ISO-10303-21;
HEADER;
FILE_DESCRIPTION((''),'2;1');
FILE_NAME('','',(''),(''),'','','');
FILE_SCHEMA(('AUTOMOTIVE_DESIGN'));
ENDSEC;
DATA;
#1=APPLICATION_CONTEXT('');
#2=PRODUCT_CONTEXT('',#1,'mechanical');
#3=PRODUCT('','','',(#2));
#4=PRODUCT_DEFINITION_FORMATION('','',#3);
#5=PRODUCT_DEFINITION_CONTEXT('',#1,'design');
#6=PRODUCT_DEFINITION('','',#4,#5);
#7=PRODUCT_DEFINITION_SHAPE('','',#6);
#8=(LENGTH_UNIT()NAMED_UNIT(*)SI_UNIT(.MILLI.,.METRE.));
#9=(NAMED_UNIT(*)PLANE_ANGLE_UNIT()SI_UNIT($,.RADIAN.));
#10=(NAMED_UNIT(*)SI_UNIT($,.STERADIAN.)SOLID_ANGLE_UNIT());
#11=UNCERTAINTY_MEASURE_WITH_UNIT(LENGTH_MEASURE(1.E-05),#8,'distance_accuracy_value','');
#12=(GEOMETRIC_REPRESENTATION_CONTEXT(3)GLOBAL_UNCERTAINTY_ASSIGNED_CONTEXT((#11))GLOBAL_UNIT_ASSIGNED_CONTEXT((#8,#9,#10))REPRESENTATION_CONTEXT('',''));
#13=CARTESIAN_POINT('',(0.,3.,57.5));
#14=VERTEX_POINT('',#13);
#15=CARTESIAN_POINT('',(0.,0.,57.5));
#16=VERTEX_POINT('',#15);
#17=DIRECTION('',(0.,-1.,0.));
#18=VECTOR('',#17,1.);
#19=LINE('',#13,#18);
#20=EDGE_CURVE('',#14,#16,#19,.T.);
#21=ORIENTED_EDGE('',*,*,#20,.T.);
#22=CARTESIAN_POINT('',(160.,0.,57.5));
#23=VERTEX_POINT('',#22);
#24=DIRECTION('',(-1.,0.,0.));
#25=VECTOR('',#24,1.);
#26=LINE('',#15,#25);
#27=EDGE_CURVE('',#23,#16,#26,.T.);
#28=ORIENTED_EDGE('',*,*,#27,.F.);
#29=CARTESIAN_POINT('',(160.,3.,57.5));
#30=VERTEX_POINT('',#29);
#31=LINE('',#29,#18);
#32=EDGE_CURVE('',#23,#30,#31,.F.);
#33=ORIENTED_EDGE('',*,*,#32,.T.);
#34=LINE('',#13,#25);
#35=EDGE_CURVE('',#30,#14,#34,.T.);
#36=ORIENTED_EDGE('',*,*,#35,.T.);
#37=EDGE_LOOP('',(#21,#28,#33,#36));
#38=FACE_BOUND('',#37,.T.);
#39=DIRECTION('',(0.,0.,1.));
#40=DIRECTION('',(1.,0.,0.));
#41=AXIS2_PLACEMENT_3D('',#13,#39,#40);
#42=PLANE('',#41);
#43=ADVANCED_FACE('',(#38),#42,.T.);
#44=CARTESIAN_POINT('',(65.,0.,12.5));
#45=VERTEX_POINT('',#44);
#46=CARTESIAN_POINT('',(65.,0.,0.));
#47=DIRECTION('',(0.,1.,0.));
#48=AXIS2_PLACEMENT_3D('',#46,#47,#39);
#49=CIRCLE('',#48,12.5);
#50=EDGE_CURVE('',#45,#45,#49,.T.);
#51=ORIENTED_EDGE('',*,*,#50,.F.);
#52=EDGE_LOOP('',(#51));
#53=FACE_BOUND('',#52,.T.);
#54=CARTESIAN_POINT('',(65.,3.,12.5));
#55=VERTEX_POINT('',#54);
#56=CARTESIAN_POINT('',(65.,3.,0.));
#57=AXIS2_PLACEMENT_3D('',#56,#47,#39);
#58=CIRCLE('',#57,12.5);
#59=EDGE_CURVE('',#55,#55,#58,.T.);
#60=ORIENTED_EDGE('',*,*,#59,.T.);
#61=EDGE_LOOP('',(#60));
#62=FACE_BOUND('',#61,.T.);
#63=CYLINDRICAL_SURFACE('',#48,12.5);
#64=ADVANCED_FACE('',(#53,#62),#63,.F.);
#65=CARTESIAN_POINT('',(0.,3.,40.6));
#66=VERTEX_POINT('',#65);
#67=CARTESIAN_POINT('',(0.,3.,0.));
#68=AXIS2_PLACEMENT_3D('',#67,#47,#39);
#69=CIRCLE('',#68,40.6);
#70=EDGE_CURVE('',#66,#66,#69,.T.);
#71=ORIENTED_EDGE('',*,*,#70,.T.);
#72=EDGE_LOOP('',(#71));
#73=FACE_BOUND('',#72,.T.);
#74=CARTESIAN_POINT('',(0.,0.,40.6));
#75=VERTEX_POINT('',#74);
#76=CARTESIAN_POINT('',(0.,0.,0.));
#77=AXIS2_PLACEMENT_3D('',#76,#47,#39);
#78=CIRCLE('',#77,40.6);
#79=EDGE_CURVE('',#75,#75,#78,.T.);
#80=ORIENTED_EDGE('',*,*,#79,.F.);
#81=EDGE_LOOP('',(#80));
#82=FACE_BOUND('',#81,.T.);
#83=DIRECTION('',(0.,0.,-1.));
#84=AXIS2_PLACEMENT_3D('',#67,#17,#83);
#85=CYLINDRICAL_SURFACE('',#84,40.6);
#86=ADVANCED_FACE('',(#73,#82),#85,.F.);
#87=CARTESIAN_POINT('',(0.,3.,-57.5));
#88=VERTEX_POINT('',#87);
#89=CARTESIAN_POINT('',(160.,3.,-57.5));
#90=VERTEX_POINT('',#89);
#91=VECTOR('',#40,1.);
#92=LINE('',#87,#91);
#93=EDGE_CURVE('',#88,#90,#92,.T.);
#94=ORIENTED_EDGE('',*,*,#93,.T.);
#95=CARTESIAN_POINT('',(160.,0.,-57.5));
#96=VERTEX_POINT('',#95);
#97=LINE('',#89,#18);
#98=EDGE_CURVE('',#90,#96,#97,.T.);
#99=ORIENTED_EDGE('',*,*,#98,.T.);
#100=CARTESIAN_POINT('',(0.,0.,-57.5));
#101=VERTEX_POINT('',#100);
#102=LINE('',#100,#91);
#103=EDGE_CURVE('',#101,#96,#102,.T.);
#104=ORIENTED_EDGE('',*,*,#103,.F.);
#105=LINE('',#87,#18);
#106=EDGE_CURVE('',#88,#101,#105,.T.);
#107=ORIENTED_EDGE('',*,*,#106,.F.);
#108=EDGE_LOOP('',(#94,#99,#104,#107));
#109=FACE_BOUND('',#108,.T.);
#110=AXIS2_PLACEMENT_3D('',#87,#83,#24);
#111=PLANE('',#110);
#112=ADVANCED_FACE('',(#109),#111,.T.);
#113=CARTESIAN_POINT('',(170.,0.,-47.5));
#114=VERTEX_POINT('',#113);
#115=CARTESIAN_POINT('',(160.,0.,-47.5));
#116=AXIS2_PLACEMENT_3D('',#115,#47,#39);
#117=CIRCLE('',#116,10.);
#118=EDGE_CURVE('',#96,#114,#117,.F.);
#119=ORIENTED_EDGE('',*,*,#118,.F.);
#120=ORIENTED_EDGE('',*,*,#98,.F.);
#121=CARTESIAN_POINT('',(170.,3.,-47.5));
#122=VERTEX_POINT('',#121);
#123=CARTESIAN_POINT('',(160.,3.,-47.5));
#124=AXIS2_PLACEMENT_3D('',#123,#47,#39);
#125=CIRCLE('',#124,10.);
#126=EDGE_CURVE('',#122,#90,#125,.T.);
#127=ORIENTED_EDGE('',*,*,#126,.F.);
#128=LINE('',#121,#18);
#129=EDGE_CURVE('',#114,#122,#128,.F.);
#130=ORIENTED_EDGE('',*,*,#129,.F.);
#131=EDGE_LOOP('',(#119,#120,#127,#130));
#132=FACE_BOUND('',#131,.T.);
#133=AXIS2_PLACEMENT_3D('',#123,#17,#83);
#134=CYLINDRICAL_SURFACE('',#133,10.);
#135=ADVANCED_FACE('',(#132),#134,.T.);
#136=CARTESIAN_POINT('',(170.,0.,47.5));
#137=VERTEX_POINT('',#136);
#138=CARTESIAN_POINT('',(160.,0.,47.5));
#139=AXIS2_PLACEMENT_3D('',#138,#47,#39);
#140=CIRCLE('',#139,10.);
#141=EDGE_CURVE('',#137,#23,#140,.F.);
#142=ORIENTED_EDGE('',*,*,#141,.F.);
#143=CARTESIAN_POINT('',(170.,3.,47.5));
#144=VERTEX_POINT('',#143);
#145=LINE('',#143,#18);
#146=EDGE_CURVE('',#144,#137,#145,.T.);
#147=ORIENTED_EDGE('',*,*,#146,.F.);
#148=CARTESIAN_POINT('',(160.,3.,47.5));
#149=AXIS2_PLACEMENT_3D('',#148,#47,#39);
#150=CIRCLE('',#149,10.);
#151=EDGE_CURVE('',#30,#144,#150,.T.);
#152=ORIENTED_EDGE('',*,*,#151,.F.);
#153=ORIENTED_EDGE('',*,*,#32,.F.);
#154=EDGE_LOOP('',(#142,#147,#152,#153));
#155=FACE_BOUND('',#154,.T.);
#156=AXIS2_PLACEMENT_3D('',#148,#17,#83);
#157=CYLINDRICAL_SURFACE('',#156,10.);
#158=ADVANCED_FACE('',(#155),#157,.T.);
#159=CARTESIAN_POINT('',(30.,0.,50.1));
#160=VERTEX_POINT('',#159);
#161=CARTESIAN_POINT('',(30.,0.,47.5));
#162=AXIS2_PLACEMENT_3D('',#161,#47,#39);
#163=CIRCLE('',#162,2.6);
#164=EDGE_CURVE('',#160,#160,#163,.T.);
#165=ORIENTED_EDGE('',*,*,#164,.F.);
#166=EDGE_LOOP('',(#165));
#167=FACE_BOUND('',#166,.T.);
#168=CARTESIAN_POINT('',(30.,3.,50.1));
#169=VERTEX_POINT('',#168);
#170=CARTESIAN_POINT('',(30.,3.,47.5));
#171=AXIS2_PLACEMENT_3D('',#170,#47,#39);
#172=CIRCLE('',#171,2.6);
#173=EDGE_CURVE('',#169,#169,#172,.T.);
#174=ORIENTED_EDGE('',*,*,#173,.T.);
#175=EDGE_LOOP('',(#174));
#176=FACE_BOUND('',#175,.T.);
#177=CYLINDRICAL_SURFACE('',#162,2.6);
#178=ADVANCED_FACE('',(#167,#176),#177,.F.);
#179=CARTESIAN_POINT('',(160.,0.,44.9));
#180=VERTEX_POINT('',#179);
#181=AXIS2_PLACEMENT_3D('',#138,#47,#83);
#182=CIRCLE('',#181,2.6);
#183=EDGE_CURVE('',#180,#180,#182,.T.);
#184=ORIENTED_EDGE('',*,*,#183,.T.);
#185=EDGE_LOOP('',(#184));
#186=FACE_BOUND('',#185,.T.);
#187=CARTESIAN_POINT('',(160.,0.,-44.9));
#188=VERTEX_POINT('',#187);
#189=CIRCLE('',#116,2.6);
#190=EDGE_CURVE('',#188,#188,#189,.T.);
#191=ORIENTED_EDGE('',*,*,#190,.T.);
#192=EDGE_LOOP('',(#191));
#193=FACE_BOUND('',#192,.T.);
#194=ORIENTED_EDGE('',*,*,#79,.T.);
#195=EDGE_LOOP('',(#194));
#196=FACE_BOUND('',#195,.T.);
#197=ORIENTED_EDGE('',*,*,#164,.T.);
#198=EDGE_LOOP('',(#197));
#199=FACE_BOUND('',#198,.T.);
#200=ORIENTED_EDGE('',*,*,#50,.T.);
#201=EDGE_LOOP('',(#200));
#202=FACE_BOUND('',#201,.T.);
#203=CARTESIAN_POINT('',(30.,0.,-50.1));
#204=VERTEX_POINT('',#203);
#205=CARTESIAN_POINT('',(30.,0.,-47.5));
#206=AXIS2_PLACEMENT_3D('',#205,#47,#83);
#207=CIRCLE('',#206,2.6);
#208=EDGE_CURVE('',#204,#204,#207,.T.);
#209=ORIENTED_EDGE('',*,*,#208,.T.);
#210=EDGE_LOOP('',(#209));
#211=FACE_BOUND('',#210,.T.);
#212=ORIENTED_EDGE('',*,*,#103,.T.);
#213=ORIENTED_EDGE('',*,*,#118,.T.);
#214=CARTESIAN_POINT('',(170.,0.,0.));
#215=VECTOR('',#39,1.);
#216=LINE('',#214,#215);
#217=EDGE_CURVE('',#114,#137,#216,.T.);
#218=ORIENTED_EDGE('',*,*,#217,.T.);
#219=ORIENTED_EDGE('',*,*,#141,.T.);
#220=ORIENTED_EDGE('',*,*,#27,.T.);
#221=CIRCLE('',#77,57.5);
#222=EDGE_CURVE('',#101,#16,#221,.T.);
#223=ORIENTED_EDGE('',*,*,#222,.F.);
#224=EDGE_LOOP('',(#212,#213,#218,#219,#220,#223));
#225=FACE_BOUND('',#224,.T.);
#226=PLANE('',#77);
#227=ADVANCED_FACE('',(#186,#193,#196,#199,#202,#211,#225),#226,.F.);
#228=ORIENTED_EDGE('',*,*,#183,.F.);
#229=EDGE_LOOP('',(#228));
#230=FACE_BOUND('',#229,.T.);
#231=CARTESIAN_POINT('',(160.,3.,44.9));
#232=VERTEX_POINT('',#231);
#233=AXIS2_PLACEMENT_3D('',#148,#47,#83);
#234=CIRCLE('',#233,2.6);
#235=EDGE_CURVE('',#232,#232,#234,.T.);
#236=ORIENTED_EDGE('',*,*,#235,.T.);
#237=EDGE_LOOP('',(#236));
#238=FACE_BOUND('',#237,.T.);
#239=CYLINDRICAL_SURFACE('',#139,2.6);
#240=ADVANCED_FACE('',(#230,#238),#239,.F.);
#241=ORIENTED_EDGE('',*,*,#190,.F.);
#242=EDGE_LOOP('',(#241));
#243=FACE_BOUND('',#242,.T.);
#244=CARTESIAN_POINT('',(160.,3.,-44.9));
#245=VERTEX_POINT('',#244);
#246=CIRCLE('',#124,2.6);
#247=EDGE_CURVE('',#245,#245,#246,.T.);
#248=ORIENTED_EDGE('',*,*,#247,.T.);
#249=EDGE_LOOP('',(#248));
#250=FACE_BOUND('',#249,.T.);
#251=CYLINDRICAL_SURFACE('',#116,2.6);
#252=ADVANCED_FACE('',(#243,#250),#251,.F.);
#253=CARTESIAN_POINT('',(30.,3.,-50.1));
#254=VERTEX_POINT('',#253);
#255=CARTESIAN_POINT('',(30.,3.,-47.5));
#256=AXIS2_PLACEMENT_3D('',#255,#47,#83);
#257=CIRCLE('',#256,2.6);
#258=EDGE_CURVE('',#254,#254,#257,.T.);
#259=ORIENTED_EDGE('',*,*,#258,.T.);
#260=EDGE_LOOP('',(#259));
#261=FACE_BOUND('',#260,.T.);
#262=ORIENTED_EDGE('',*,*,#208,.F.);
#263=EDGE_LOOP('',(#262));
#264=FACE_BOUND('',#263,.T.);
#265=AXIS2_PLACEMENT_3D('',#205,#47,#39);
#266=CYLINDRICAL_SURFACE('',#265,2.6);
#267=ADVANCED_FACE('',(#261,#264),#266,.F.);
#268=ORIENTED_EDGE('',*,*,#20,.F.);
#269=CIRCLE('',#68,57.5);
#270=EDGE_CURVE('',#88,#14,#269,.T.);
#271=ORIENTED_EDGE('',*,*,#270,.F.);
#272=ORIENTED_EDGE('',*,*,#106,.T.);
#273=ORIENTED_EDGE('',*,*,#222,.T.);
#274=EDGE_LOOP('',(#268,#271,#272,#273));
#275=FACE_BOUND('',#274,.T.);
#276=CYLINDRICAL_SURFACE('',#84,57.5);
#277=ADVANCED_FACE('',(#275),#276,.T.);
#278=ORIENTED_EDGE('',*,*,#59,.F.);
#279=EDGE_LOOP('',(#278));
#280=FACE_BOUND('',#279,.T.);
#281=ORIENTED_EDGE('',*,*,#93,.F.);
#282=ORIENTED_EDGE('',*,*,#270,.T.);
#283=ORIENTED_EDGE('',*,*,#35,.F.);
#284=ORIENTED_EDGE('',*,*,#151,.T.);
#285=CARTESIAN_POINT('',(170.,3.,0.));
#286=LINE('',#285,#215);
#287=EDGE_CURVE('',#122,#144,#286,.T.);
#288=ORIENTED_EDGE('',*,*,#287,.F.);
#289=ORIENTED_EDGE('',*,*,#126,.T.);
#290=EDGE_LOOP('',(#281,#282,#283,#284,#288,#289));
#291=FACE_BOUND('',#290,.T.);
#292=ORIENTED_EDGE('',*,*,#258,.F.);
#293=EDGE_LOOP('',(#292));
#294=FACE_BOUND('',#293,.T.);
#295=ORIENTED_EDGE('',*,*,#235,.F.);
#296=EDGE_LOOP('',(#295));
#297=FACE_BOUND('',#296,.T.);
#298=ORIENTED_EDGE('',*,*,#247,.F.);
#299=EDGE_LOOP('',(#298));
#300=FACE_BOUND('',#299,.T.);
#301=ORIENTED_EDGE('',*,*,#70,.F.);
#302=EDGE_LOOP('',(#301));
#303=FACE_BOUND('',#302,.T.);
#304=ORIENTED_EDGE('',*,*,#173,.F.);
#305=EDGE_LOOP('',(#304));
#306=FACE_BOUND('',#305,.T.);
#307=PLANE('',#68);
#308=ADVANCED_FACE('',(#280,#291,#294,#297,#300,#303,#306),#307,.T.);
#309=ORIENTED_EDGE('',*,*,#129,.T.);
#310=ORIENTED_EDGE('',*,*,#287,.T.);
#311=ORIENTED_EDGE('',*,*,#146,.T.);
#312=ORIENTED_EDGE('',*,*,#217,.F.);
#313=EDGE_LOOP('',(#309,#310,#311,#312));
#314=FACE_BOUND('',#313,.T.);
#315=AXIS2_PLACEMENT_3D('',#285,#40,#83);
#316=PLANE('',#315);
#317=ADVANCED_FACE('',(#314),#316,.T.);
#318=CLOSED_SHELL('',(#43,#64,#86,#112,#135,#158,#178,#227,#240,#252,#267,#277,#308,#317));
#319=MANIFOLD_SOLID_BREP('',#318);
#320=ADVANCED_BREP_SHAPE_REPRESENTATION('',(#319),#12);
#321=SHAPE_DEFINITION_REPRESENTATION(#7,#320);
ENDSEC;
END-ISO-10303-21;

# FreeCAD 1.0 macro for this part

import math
import FreeCAD as App
import Part
import Sketcher
Q = App.Units.Quantity


def edges_at(feature, points):
    """Names of the edges that pass closest to the given points."""
    edges = feature.Shape.Edges
    near = lambda p: min(range(len(edges)), key=lambda i: edges[i].distToShape(Part.Vertex(*p))[0])
    return sorted({f"Edge{near(p) + 1}" for p in points})

doc = App.newDocument("Part")
body = doc.addObject("PartDesign::Body", "Body")

# Sketch on XZ plane
sketch1 = body.newObject("Sketcher::SketchObject", "Sketch")
sketch1.AttachmentSupport = (doc.getObject("XZ_Plane"), [""])
sketch1.MapMode = "FlatFace"
sketch1.addGeometry([
    Part.LineSegment(App.Vector(170, -58, 0), App.Vector(0, -58, 0)),  # 0
    Part.ArcOfCircle(Part.Circle(App.Vector(0, 0, 0), App.Vector(0, 0, 1), 58), math.radians(90), math.radians(270)),  # 1
    Part.LineSegment(App.Vector(0, 58, 0), App.Vector(170, 58, 0)),  # 2
    Part.LineSegment(App.Vector(170, 58, 0), App.Vector(170, -58, 0)),  # 3
    Part.Circle(App.Vector(0, 0, 0), App.Vector(0, 0, 1), 41),  # 4
], False)
sketch1.addConstraint([
    Sketcher.Constraint("Tangent", 0, 2, 1, 2),
    Sketcher.Constraint("Tangent", 1, 1, 2, 1),
    Sketcher.Constraint("Coincident", 2, 2, 3, 1),
    Sketcher.Constraint("Coincident", 3, 2, 0, 1),
    Sketcher.Constraint("Horizontal", 0),
    Sketcher.Constraint("Horizontal", 2),
    Sketcher.Constraint("Vertical", 3),
    Sketcher.Constraint("Coincident", 1, 3, -1, 1),
    Sketcher.Constraint("Coincident", 4, 3, -1, 1),
    Sketcher.Constraint("Diameter", 4, Q("81.2 mm")),
    Sketcher.Constraint("Radius", 1, Q("57.5 mm")),
    Sketcher.Constraint("DistanceX", 0, 2, 0, 1, Q("170 mm")),
])
pad1 = body.newObject("PartDesign::Pad", "Pad")
pad1.Profile = sketch1
pad1.Length = 3
pad1.Reversed = True
doc.recompute()

fillet = body.newObject("PartDesign::Fillet", "Fillet")
fillet.Base = (pad1, edges_at(pad1, [(170, 1.5, -57.5), (170, 1.5, 57.5)]))
fillet.Radius = 10

# Sketch on XZ plane
sketch2 = body.newObject("Sketcher::SketchObject", "Sketch001")
sketch2.AttachmentSupport = (doc.getObject("XZ_Plane"), [""])
sketch2.MapMode = "FlatFace"
sketch2.AttachmentOffset = App.Placement(App.Vector(0, 0, -3), App.Rotation())
sketch2.addGeometry([
    Part.Circle(App.Vector(160, -47.5, 0), App.Vector(0, 0, 1), 2.6),  # 0
    Part.Circle(App.Vector(160, 47.5, 0), App.Vector(0, 0, 1), 2.6),  # 1
    Part.Circle(App.Vector(30, 47.5, 0), App.Vector(0, 0, 1), 2.6),  # 2
    Part.Circle(App.Vector(30, -47.5, 0), App.Vector(0, 0, 1), 2.6),  # 3
    Part.Circle(App.Vector(65, 0, 0), App.Vector(0, 0, 1), 12.5),  # 4
], False)
sketch2.addConstraint([
    Sketcher.Constraint("Equal", 0, 1),
    Sketcher.Constraint("Equal", 1, 2),
    Sketcher.Constraint("Equal", 2, 3),
    Sketcher.Constraint("Symmetric", 0, 3, 1, 3, -1),
    Sketcher.Constraint("Symmetric", 2, 3, 3, 3, -1),
    Sketcher.Constraint("PointOnObject", 4, 3, -1),
    Sketcher.Constraint("Horizontal", 1, 3, 2, 3),
    Sketcher.Constraint("Diameter", 4, Q("25 mm")),
    Sketcher.Constraint("Diameter", 0, Q("5.2 mm")),
    Sketcher.Constraint("DistanceX", -1, 1, 0, 3, Q("160 mm")),
    Sketcher.Constraint("DistanceX", -1, 1, 2, 3, Q("30 mm")),
    Sketcher.Constraint("DistanceX", -1, 1, 4, 3, Q("65 mm")),
    Sketcher.Constraint("DistanceY", 0, 3, 1, 3, Q("95 mm")),
])
pocket1 = body.newObject("PartDesign::Pocket", "Pocket")
pocket1.Profile = sketch2
pocket1.Type = "ThroughAll"
pocket1.Reversed = True

doc.recompute()
